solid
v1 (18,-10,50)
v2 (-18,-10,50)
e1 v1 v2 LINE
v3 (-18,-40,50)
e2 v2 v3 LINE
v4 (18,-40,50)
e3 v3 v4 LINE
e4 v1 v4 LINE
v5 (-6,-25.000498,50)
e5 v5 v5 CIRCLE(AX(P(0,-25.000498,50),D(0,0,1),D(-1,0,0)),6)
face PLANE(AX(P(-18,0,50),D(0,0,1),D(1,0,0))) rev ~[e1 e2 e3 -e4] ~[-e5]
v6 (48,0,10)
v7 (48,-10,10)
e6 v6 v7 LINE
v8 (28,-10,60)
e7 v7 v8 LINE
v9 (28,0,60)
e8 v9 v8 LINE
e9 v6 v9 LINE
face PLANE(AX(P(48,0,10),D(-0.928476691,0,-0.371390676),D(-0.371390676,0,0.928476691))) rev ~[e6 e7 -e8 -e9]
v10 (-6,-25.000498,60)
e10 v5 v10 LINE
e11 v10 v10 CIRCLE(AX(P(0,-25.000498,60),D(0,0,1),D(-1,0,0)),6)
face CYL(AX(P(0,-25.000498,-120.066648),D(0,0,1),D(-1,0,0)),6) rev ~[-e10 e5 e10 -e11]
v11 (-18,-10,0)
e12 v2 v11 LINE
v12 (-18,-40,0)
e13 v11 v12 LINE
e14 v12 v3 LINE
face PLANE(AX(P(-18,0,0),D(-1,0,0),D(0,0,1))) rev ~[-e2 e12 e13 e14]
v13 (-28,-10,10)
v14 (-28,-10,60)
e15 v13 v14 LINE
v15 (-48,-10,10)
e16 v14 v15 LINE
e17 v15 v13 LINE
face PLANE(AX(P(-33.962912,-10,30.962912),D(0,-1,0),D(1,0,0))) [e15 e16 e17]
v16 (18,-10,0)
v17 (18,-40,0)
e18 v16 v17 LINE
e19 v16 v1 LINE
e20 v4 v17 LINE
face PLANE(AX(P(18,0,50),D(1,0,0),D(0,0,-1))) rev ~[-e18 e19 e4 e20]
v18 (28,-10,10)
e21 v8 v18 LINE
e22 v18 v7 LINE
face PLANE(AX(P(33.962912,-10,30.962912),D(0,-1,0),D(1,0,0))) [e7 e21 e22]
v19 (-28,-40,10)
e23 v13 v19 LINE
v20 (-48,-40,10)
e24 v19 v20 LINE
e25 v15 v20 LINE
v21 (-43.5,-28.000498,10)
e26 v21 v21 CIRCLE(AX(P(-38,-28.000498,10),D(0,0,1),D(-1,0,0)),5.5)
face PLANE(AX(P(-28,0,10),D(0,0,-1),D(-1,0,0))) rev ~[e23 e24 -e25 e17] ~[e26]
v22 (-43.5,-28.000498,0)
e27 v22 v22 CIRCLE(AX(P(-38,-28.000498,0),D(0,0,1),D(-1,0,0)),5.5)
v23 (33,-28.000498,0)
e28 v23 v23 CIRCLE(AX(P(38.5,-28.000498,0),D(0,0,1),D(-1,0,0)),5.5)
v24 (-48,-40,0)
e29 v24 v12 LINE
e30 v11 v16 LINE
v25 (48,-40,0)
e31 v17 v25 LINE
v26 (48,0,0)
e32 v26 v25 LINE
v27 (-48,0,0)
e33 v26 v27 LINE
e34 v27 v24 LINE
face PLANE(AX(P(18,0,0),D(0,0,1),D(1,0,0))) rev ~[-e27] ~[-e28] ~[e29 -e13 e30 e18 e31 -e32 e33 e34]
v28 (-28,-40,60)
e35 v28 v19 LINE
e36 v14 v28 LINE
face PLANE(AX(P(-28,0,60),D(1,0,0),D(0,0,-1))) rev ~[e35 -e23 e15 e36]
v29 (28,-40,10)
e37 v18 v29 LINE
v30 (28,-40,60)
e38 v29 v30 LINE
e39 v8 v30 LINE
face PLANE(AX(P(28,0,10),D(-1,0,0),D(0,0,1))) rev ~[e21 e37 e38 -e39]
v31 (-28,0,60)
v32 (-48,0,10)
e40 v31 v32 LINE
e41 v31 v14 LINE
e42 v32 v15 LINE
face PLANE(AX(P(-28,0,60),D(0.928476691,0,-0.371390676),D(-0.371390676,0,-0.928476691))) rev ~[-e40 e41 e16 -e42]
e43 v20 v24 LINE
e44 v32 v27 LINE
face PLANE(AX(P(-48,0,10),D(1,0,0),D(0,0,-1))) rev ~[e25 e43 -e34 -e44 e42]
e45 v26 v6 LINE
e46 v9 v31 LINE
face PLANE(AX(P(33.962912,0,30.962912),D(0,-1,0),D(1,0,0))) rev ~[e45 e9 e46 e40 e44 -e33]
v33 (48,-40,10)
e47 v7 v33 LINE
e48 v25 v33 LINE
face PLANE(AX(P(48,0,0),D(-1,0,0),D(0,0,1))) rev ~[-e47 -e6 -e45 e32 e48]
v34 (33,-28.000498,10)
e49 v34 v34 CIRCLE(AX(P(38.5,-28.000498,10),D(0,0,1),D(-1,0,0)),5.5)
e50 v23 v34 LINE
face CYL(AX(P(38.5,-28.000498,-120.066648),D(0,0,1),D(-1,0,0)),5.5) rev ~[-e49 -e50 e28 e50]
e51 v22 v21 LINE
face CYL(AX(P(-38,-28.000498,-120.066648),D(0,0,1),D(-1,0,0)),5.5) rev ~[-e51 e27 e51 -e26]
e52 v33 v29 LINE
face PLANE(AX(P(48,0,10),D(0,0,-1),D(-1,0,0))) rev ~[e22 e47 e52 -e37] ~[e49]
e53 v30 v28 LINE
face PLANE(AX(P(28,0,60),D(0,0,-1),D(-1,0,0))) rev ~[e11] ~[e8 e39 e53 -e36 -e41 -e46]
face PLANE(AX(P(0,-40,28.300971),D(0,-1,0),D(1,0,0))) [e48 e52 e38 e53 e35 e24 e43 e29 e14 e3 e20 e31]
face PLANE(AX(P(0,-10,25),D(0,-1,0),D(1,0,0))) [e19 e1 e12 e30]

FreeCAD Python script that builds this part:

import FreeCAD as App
import Part
import Sketcher
from FreeCAD import Vector

doc = App.newDocument("Part")
body = doc.addObject("PartDesign::Body", "Body")

sketch1 = body.newObject("Sketcher::SketchObject", "Sketch")
sketch1.AttachmentSupport = (doc.getObject("XZ_Plane"), [""])
sketch1.MapMode = "FlatFace"
sketch1.addGeometry([
    Part.LineSegment(Vector(-48, 10, 0), Vector(-48, 0, 0)),
    Part.LineSegment(Vector(-48, 0, 0), Vector(-18, 0, 0)),
    Part.LineSegment(Vector(-18, 0, 0), Vector(-18, 50, 0)),
    Part.LineSegment(Vector(-18, 50, 0), Vector(18, 50, 0)),
    Part.LineSegment(Vector(18, 50, 0), Vector(18, 0, 0)),
    Part.LineSegment(Vector(18, 0, 0), Vector(48, 0, 0)),
    Part.LineSegment(Vector(48, 0, 0), Vector(48, 10, 0)),
    Part.LineSegment(Vector(48, 10, 0), Vector(28, 10, 0)),
    Part.LineSegment(Vector(28, 10, 0), Vector(28, 60, 0)),
    Part.LineSegment(Vector(28, 60, 0), Vector(-28, 60, 0)),
    Part.LineSegment(Vector(-28, 60, 0), Vector(-28, 10, 0)),
    Part.LineSegment(Vector(-28, 10, 0), Vector(-48, 10, 0)),
], False)
sketch1.addConstraint([
    Sketcher.Constraint("Coincident", 0, 2, 1, 1),
    Sketcher.Constraint("Coincident", 1, 2, 2, 1),
    Sketcher.Constraint("Coincident", 2, 2, 3, 1),
    Sketcher.Constraint("Coincident", 3, 2, 4, 1),
    Sketcher.Constraint("Coincident", 4, 2, 5, 1),
    Sketcher.Constraint("Coincident", 5, 2, 6, 1),
    Sketcher.Constraint("Coincident", 6, 2, 7, 1),
    Sketcher.Constraint("Coincident", 7, 2, 8, 1),
    Sketcher.Constraint("Coincident", 8, 2, 9, 1),
    Sketcher.Constraint("Coincident", 9, 2, 10, 1),
    Sketcher.Constraint("Coincident", 10, 2, 11, 1),
    Sketcher.Constraint("Coincident", 11, 2, 0, 1),
    Sketcher.Constraint("Vertical", 0),
    Sketcher.Constraint("Horizontal", 1),
    Sketcher.Constraint("Vertical", 2),
    Sketcher.Constraint("Horizontal", 3),
    Sketcher.Constraint("Vertical", 4),
    Sketcher.Constraint("Horizontal", 5),
    Sketcher.Constraint("Vertical", 6),
    Sketcher.Constraint("Horizontal", 7),
    Sketcher.Constraint("Vertical", 8),
    Sketcher.Constraint("Horizontal", 9),
    Sketcher.Constraint("Vertical", 10),
    Sketcher.Constraint("Horizontal", 11),
    Sketcher.Constraint("Symmetric", 1, 2, 4, 2, -1, 1),
    Sketcher.Constraint("Symmetric", 0, 2, 5, 2, -2),
    Sketcher.Constraint("Symmetric", 7, 2, 10, 2, -2),
    Sketcher.Constraint("Equal", 4, 8),
    Sketcher.Constraint("DistanceX", 1, 1, 1, 2, 30.0),
    Sketcher.Constraint("DistanceX", 3, 1, 3, 2, 36.0),
    Sketcher.Constraint("DistanceX", 7, 2, 7, 1, 20.0),
    Sketcher.Constraint("DistanceY", 0, 2, 0, 1, 10.0),
    Sketcher.Constraint("DistanceY", 2, 1, 2, 2, 50.0),
])
pad1 = body.newObject("PartDesign::Pad", "Pad")
pad1.Profile = sketch1
pad1.Length = 40

sketch2 = body.newObject("Sketcher::SketchObject", "Sketch001")
sketch2.AttachmentSupport = (doc.getObject("XZ_Plane"), [""])
sketch2.MapMode = "FlatFace"
sketch2.addGeometry([
    Part.LineSegment(Vector(48, 10, 0), Vector(28, 60, 0)),
    Part.LineSegment(Vector(28, 60, 0), Vector(28, 10, 0)),
    Part.LineSegment(Vector(28, 10, 0), Vector(48, 10, 0)),
    Part.LineSegment(Vector(-28, 60, 0), Vector(-48, 10, 0)),
    Part.LineSegment(Vector(-48, 10, 0), Vector(-28, 10, 0)),
    Part.LineSegment(Vector(-28, 10, 0), Vector(-28, 60, 0)),
    Part.LineSegment(Vector(-18, 50, 0), Vector(-18, 0, 0)),
    Part.LineSegment(Vector(-18, 0, 0), Vector(18, 0, 0)),
    Part.LineSegment(Vector(18, 0, 0), Vector(18, 50, 0)),
    Part.LineSegment(Vector(18, 50, 0), Vector(-18, 50, 0)),
], False)
sketch2.addConstraint([
    Sketcher.Constraint("Coincident", 0, 2, 1, 1),
    Sketcher.Constraint("Coincident", 1, 2, 2, 1),
    Sketcher.Constraint("Coincident", 2, 2, 0, 1),
    Sketcher.Constraint("Coincident", 3, 2, 4, 1),
    Sketcher.Constraint("Coincident", 4, 2, 5, 1),
    Sketcher.Constraint("Coincident", 5, 2, 3, 1),
    Sketcher.Constraint("Coincident", 6, 2, 7, 1),
    Sketcher.Constraint("Coincident", 7, 2, 8, 1),
    Sketcher.Constraint("Coincident", 8, 2, 9, 1),
    Sketcher.Constraint("Coincident", 9, 2, 6, 1),
    Sketcher.Constraint("Vertical", 1),
    Sketcher.Constraint("Horizontal", 2),
    Sketcher.Constraint("Horizontal", 4),
    Sketcher.Constraint("Vertical", 5),
    Sketcher.Constraint("Vertical", 6),
    Sketcher.Constraint("Horizontal", 7),
    Sketcher.Constraint("Vertical", 8),
    Sketcher.Constraint("Horizontal", 9),
    Sketcher.Constraint("Symmetric", 6, 2, 7, 2, -1, 1),
    Sketcher.Constraint("Symmetric", 2, 2, 3, 2, -2),
    Sketcher.Constraint("Symmetric", 0, 2, 5, 2, -2),
    Sketcher.Constraint("Equal", 5, 6),
    Sketcher.Constraint("DistanceX", 2, 1, 2, 2, 20.0),
    Sketcher.Constraint("DistanceX", 7, 1, 7, 2, 36.0),
    Sketcher.Constraint("DistanceY", 1, 2, 1, 1, 50.0),
    Sketcher.Constraint("DistanceX", -1, 1, 0, 2, 28.0),
    Sketcher.Constraint("DistanceY", -1, 1, 0, 2, 60.0),
])
pad2 = body.newObject("PartDesign::Pad", "Pad001")
pad2.Profile = sketch2
pad2.Length = 10

sketch3 = body.newObject("Sketcher::SketchObject", "Sketch002")
sketch3.AttachmentSupport = (doc.getObject("XY_Plane"), [""])
sketch3.MapMode = "FlatFace"
sketch3.addGeometry(Part.Circle(Vector(0, -25.000498, 0), Vector(0, 0, 1), 6), False)
sketch3.addConstraint([
    Sketcher.Constraint("PointOnObject", 0, 3, -2),
    Sketcher.Constraint("Diameter", 0, 12.0),
    Sketcher.Constraint("DistanceY", 0, 3, -1, 1, 25.000498),
])
doc.recompute()
hole = body.newObject("PartDesign::Hole", "Hole")
hole.Profile = sketch3
hole.ThreadType = "None"
hole.Diameter = 12
hole.DepthType = "ThroughAll"
hole.Reversed = True

sketch4 = body.newObject("Sketcher::SketchObject", "Sketch003")
sketch4.AttachmentSupport = (doc.getObject("XY_Plane"), [""])
sketch4.MapMode = "FlatFace"
sketch4.addGeometry(Part.Circle(Vector(38.5, -28.000498, 0), Vector(0, 0, 1), 5.5), False)
sketch4.addConstraint([
    Sketcher.Constraint("Diameter", 0, 11.0),
    Sketcher.Constraint("DistanceX", -1, 1, 0, 3, 38.5),
    Sketcher.Constraint("DistanceY", 0, 3, -1, 1, 28.000498),
])
doc.recompute()
hole2 = body.newObject("PartDesign::Hole", "Hole001")
hole2.Profile = sketch4
hole2.ThreadType = "None"
hole2.Diameter = 11
hole2.DepthType = "ThroughAll"
hole2.Reversed = True

sketch5 = body.newObject("Sketcher::SketchObject", "Sketch004")
sketch5.AttachmentSupport = (doc.getObject("XY_Plane"), [""])
sketch5.MapMode = "FlatFace"
sketch5.addGeometry(Part.Circle(Vector(-38, -28.000498, 0), Vector(0, 0, 1), 5.5), False)
sketch5.addConstraint([
    Sketcher.Constraint("Diameter", 0, 11.0),
    Sketcher.Constraint("DistanceX", 0, 3, -1, 1, 38.0),
    Sketcher.Constraint("DistanceY", 0, 3, -1, 1, 28.000498),
])
doc.recompute()
hole3 = body.newObject("PartDesign::Hole", "Hole002")
hole3.Profile = sketch5
hole3.ThreadType = "None"
hole3.Diameter = 11
hole3.DepthType = "ThroughAll"
hole3.Reversed = True

doc.recompute()
